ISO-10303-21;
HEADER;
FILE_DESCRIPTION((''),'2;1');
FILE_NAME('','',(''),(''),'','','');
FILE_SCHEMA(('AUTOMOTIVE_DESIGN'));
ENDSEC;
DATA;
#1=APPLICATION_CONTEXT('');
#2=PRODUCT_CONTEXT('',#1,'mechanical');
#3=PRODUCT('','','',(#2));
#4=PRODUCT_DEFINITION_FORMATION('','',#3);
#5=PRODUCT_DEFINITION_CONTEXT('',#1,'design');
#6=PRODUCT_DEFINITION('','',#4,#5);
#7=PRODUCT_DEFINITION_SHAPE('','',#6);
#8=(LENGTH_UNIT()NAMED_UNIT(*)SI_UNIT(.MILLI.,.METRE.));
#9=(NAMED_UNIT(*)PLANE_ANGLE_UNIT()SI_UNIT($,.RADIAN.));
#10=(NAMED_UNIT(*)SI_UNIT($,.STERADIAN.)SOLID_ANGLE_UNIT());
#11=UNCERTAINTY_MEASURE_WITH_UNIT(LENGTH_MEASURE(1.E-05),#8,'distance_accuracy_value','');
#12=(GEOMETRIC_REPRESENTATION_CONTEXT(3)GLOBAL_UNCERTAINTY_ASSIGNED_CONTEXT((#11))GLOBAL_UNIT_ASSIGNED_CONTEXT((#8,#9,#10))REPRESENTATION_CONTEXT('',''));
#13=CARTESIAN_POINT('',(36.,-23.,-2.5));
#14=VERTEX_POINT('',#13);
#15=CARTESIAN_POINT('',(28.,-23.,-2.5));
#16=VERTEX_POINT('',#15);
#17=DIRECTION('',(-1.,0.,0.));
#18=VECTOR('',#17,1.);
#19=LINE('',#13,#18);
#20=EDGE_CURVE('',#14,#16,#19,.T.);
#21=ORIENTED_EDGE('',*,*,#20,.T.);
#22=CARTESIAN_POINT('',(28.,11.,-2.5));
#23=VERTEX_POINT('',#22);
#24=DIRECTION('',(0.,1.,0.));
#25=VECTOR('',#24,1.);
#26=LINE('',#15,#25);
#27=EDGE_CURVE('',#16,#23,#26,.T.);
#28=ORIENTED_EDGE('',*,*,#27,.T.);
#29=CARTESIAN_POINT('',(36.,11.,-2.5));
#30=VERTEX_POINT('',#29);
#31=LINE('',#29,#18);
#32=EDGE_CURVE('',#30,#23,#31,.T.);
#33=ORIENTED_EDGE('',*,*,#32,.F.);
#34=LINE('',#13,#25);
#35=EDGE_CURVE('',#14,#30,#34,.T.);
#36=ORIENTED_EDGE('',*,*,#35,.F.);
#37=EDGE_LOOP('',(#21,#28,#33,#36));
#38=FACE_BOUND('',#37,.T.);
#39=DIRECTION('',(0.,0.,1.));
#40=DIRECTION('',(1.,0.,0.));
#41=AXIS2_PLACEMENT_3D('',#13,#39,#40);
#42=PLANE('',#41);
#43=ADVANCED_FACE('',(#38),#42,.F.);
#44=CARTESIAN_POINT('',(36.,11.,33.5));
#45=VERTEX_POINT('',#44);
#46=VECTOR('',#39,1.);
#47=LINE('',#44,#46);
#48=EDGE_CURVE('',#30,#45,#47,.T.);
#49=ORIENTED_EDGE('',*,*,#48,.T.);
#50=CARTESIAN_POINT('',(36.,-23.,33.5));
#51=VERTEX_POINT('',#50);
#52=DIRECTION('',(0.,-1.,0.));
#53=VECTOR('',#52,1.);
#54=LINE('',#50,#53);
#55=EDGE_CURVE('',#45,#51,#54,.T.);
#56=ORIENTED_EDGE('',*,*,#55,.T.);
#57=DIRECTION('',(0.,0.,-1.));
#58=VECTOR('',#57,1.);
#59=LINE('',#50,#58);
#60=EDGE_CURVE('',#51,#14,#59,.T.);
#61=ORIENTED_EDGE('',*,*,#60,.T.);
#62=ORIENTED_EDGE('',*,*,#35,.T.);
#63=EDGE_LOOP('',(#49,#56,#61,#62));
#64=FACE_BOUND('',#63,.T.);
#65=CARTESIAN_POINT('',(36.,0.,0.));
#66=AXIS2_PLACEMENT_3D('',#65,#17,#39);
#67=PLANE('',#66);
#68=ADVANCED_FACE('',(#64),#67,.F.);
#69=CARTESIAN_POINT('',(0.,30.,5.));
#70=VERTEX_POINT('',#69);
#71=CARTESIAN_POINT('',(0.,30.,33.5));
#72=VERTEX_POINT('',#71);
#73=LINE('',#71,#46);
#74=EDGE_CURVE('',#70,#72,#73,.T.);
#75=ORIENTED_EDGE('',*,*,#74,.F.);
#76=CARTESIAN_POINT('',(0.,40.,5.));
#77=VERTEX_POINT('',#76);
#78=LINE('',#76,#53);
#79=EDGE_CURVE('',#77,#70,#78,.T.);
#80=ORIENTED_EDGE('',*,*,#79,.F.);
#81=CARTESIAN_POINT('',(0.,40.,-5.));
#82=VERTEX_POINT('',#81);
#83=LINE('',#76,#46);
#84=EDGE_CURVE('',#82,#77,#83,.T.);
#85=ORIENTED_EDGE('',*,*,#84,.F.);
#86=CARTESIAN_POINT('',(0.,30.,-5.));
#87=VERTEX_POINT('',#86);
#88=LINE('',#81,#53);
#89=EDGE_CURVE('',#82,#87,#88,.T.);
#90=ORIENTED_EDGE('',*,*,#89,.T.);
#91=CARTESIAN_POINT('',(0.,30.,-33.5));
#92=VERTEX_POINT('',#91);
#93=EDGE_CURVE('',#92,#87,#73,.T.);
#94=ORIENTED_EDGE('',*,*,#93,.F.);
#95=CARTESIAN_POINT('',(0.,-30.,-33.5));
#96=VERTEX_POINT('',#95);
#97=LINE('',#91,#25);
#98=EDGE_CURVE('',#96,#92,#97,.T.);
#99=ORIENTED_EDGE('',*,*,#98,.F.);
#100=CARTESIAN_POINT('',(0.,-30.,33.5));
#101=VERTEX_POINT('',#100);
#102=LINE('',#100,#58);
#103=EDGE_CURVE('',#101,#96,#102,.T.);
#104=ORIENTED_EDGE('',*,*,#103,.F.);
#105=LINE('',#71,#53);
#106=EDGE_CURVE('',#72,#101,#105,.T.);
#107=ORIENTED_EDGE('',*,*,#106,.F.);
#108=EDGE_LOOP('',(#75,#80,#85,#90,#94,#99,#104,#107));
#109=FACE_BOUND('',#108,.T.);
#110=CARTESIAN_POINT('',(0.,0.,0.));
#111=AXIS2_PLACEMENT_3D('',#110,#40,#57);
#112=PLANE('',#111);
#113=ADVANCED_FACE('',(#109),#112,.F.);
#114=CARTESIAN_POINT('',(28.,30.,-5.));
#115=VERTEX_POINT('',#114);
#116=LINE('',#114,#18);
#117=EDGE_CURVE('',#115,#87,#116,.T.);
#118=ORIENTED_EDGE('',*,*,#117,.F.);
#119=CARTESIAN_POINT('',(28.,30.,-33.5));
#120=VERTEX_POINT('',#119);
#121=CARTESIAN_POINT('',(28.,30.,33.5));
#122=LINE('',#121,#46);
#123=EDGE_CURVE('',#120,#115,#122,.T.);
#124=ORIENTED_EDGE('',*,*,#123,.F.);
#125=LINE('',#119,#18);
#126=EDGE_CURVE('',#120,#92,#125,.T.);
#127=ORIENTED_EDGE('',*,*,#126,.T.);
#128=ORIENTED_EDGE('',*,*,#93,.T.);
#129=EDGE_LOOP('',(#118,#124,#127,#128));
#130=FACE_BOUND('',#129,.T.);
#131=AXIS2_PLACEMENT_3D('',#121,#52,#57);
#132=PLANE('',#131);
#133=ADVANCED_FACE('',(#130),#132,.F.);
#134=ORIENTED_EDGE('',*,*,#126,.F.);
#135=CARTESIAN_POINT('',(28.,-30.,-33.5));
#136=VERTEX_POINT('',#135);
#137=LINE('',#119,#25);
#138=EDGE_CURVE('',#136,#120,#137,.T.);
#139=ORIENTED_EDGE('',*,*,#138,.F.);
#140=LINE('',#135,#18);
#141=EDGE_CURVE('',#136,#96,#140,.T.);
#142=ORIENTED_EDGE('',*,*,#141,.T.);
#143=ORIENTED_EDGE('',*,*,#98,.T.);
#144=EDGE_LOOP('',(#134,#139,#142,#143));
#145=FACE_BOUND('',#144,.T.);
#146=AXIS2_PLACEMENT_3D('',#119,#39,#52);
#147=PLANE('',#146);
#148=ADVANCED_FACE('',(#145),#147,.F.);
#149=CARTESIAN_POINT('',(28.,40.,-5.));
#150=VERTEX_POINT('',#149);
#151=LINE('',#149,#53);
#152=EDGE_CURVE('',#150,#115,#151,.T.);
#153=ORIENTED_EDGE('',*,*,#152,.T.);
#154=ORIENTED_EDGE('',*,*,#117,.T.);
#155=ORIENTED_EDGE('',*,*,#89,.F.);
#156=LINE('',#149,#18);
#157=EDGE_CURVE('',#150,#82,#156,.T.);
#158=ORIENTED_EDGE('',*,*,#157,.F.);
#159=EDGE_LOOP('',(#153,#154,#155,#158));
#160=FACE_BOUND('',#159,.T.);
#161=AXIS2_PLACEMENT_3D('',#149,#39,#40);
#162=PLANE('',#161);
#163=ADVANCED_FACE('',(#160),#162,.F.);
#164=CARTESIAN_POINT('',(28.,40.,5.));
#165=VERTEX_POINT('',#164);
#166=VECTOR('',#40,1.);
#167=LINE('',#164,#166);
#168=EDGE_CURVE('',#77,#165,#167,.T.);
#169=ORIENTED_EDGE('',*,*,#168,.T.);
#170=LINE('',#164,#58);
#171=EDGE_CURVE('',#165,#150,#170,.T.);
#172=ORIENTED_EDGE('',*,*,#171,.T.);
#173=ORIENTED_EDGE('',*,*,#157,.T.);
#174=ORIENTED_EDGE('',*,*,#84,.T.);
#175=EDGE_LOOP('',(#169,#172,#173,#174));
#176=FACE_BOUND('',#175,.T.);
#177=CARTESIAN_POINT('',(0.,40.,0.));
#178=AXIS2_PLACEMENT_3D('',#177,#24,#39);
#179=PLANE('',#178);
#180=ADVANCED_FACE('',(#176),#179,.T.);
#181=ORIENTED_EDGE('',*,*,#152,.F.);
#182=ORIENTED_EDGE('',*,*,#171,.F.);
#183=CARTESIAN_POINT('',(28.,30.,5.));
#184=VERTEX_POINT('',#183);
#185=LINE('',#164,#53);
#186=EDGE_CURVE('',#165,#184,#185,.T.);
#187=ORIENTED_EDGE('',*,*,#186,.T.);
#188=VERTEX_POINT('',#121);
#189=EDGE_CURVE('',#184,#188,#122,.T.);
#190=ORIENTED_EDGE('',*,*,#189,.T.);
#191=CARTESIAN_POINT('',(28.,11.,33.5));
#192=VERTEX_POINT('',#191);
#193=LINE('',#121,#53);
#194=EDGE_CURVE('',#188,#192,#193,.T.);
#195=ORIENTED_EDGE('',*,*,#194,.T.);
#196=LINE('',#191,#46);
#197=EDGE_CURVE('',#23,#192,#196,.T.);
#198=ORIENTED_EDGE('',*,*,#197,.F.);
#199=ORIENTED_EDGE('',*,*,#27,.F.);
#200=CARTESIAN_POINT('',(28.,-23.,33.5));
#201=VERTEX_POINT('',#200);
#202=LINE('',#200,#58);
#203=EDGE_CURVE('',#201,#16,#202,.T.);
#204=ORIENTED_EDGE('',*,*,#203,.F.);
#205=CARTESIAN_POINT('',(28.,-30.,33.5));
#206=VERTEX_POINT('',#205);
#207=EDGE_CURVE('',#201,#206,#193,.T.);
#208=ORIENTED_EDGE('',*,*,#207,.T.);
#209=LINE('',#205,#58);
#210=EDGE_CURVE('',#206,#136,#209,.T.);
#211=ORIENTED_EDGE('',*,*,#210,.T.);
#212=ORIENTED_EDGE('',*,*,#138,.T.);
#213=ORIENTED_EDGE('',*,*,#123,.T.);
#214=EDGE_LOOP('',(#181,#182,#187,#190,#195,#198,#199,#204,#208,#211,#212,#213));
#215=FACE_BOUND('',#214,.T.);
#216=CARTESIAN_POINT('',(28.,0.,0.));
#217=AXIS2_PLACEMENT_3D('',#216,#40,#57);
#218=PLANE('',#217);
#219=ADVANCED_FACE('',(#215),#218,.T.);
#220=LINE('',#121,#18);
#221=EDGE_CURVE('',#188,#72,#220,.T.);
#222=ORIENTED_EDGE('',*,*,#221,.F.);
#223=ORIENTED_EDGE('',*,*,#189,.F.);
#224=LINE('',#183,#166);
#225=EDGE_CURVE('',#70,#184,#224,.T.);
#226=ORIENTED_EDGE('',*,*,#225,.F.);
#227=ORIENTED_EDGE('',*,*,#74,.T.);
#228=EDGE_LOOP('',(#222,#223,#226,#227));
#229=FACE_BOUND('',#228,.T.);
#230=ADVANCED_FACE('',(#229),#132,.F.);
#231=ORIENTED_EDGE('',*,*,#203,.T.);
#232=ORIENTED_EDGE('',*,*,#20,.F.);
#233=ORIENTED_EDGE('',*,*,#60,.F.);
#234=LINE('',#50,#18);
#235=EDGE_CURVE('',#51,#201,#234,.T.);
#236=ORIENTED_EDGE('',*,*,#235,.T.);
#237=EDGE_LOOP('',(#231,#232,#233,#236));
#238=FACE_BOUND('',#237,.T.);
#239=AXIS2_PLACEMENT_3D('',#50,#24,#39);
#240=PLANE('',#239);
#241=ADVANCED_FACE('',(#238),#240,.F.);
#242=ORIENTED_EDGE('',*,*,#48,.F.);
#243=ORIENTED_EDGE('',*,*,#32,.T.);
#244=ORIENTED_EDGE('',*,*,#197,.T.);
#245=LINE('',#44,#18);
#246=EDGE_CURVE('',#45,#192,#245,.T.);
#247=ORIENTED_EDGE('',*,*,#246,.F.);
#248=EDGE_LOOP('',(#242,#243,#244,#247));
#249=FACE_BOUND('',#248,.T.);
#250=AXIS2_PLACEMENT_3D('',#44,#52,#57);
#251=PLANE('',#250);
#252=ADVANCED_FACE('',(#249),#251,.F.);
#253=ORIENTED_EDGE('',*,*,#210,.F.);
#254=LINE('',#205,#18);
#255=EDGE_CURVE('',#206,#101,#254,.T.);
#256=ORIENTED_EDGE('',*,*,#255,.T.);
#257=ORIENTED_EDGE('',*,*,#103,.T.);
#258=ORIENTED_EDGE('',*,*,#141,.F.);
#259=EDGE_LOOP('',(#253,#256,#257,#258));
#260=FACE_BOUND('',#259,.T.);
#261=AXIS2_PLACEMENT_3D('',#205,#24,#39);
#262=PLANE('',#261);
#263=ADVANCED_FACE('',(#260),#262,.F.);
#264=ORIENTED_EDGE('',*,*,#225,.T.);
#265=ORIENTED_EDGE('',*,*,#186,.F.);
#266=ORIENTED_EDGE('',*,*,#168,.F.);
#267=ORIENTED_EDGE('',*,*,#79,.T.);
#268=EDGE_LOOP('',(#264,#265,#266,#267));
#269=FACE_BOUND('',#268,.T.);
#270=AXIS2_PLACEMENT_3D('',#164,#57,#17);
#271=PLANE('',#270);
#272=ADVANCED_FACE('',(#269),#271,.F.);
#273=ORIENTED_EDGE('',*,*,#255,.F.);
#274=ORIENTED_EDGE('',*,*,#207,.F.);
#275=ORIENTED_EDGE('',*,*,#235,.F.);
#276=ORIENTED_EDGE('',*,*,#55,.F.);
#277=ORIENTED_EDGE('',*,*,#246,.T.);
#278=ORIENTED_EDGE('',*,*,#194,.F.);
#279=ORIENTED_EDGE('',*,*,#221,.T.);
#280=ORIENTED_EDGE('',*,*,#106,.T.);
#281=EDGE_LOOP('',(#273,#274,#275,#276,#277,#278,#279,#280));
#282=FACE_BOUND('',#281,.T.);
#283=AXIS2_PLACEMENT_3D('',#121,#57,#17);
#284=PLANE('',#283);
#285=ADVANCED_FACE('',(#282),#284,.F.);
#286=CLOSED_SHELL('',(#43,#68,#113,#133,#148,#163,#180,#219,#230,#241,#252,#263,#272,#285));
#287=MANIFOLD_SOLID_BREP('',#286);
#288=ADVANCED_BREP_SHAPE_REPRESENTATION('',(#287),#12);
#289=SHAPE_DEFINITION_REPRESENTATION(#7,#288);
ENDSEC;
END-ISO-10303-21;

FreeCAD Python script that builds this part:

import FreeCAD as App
import Part
import Sketcher
Q = App.Units.Quantity


def add_polygon(sketch, points):
    """Adds a closed chain of lines whose ends are joined by coincident constraints."""
    first, n = sketch.GeometryCount, len(points)
    for a, b in zip(points, points[1:] + points[:1]):
        sketch.addGeometry(Part.LineSegment(App.Vector(*a, 0), App.Vector(*b, 0)), False)
    for i in range(n):
        sketch.addConstraint(Sketcher.Constraint("Coincident", first + i, 2, first + (i + 1) % n, 1))

doc = App.newDocument("Part")
params = doc.addObject("Spreadsheet::Sheet", "Params")
for row, (alias, value) in enumerate([
    ("sketch1_width", "60 mm"),
    ("sketch1_height", "67 mm"),
    ("pad1_length", "28 mm"),
    ("sketch2_width", "34 mm"),
    ("sketch2_height", "36 mm"),
    ("pad2_length", "8 mm"),
    ("sketch3_width", "28 mm"),
    ("sketch3_height", "10 mm"),
    ("pad3_length", "10 mm"),
], start=1):
    params.set(f"A{row}", alias)
    params.set(f"B{row}", "=" + value)
    params.setAlias(f"B{row}", alias)

body = doc.addObject("PartDesign::Body", "Body")

# Sketch on YZ plane
sketch1 = body.newObject("Sketcher::SketchObject", "Sketch")
sketch1.AttachmentSupport = (doc.getObject("YZ_Plane"), [""])
sketch1.MapMode = "FlatFace"
add_polygon(sketch1, [(30, 33.5), (-30, 33.5), (-30, -33.5), (30, -33.5)])  # lines 0-3
sketch1.addConstraint([
    Sketcher.Constraint("Horizontal", 0),
    Sketcher.Constraint("Vertical", 1),
    Sketcher.Constraint("Horizontal", 2),
    Sketcher.Constraint("Vertical", 3),
    Sketcher.Constraint("Symmetric", 0, 2, 2, 2, -1, 1),
    Sketcher.Constraint("DistanceX", 0, 2, 0, 1, Q("60 mm")),
    Sketcher.Constraint("DistanceY", 1, 2, 1, 1, Q("67 mm")),
])
sketch1.setExpression("Constraints[9]", "Params.sketch1_width")
sketch1.setExpression("Constraints[10]", "Params.sketch1_height")
pad1 = body.newObject("PartDesign::Pad", "Pad")
pad1.Profile = sketch1
pad1.setExpression("Length", "Params.pad1_length")

# Sketch on YZ plane
sketch2 = body.newObject("Sketcher::SketchObject", "Sketch001")
sketch2.AttachmentSupport = (doc.getObject("YZ_Plane"), [""])
sketch2.MapMode = "FlatFace"
sketch2.AttachmentOffset = App.Placement(App.Vector(0, 0, 28), App.Rotation())
add_polygon(sketch2, [(11, 33.5), (-23, 33.5), (-23, -2.5), (11, -2.5)])  # lines 0-3
sketch2.addConstraint([
    Sketcher.Constraint("Horizontal", 0),
    Sketcher.Constraint("Vertical", 1),
    Sketcher.Constraint("Horizontal", 2),
    Sketcher.Constraint("Vertical", 3),
    Sketcher.Constraint("DistanceX", 0, 2, 0, 1, Q("34 mm")),
    Sketcher.Constraint("DistanceY", 1, 2, 1, 1, Q("36 mm")),
    Sketcher.Constraint("DistanceX", 0, 2, -1, 1, Q("23 mm")),
    Sketcher.Constraint("DistanceY", -1, 1, 0, 2, Q("33.5 mm")),
])
sketch2.setExpression("Constraints[8]", "Params.sketch2_width")
sketch2.setExpression("Constraints[9]", "Params.sketch2_height")
pad2 = body.newObject("PartDesign::Pad", "Pad001")
pad2.Profile = sketch2
pad2.setExpression("Length", "Params.pad2_length")

# Sketch on XZ plane
sketch3 = body.newObject("Sketcher::SketchObject", "Sketch002")
sketch3.AttachmentSupport = (doc.getObject("XZ_Plane"), [""])
sketch3.MapMode = "FlatFace"
sketch3.AttachmentOffset = App.Placement(App.Vector(0, 0, -30), App.Rotation())
add_polygon(sketch3, [(0, -5), (0, 5), (28, 5), (28, -5)])  # lines 0-3
sketch3.addConstraint([
    Sketcher.Constraint("Vertical", 0),
    Sketcher.Constraint("Horizontal", 1),
    Sketcher.Constraint("Vertical", 2),
    Sketcher.Constraint("Horizontal", 3),
    Sketcher.Constraint("Symmetric", 0, 2, 3, 2, -1, 1),
    Sketcher.Constraint("DistanceX", 1, 1, 1, 2, Q("28 mm")),
    Sketcher.Constraint("DistanceY", 0, 1, 0, 2, Q("10 mm")),
])
sketch3.setExpression("Constraints[9]", "Params.sketch3_width")
sketch3.setExpression("Constraints[10]", "Params.sketch3_height")
pad3 = body.newObject("PartDesign::Pad", "Pad002")
pad3.Profile = sketch3
pad3.setExpression("Length", "Params.pad3_length")
pad3.Reversed = True

doc.recompute()
